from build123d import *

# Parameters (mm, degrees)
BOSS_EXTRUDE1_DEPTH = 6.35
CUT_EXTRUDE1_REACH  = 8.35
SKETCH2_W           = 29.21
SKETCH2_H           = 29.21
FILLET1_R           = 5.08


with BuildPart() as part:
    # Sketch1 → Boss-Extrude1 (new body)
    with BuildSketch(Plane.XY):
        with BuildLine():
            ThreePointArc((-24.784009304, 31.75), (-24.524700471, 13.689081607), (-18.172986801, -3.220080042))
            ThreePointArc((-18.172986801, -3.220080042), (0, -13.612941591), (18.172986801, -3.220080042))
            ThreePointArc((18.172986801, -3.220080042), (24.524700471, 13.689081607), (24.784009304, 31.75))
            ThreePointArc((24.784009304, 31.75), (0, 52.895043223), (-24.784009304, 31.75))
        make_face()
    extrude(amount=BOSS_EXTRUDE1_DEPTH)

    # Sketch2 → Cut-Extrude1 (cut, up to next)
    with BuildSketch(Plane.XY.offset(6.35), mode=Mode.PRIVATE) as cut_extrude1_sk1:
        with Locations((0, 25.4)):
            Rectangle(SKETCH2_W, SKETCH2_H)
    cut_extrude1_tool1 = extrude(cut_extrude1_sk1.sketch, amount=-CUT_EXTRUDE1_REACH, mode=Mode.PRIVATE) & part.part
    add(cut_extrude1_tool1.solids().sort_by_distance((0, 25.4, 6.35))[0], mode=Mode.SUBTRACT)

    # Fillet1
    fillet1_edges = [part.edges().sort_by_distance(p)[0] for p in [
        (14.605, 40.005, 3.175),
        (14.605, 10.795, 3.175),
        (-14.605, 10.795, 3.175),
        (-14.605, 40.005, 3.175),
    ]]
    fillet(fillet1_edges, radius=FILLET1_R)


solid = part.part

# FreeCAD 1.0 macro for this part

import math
import FreeCAD as App
import Part
import Sketcher

V = App.Vector
Q = App.Units.Quantity


def edges_at(feature, points):
    """Names of the edges that pass closest to the given points."""
    edges = feature.Shape.Edges
    near = lambda p: min(range(len(edges)), key=lambda i: edges[i].distToShape(Part.Vertex(*p))[0])
    return sorted({f"Edge{near(p) + 1}" for p in points})


def add_polygon(sketch, points):
    """Adds a closed chain of lines whose ends are joined by coincident constraints."""
    first, n = sketch.GeometryCount, len(points)
    for a, b in zip(points, points[1:] + points[:1]):
        sketch.addGeometry(Part.LineSegment(App.Vector(*a, 0), App.Vector(*b, 0)), False)
    for i in range(n):
        sketch.addConstraint(Sketcher.Constraint("Coincident", first + i, 2, first + (i + 1) % n, 1))

doc = App.newDocument("Part")
body = doc.addObject("PartDesign::Body", "Body")

# Sketch on XY plane
sketch1 = body.newObject("Sketcher::SketchObject", "Sketch")
sketch1.AttachmentSupport = (doc.getObject("XY_Plane"), [""])
sketch1.MapMode = "FlatFace"
sketch1.addGeometry(Part.ArcOfCircle(Part.Circle(V(27, 23, 0), V(0, 0, 1), 53), math.radians(171), math.radians(210)), False)
sketch1.addGeometry(Part.ArcOfCircle(Part.Circle(V(0, 7, 0), V(0, 0, 1), 21), math.radians(-150), math.radians(-30)), False)
sketch1.addGeometry(Part.ArcOfCircle(Part.Circle(V(-27, 23, 0), V(0, 0, 1), 53), math.radians(-30), math.radians(9)), False)
sketch1.addGeometry(Part.ArcOfCircle(Part.Circle(V(0, 28, 0), V(0, 0, 1), 25), math.radians(9), math.radians(171)), False)
sketch1.addConstraint(Sketcher.Constraint("Tangent", 0, 2, 1, 1))
sketch1.addConstraint(Sketcher.Constraint("Tangent", 1, 2, 2, 1))
sketch1.addConstraint(Sketcher.Constraint("Tangent", 2, 2, 3, 1))
sketch1.addConstraint(Sketcher.Constraint("Tangent", 3, 2, 0, 1))
sketch1.addConstraint(Sketcher.Constraint("Equal", 0, 2))
sketch1.addConstraint(Sketcher.Constraint("Symmetric", 0, 3, 2, 3, -2))
sketch1.addConstraint(Sketcher.Constraint("DistanceY", -1, 1, 2, 2, Q("1.25 in")))
sketch1.addConstraint(Sketcher.Constraint("Radius", 1, Q("21.085099 mm")))
sketch1.addConstraint(Sketcher.Constraint("Radius", 0, Q("52.620531 mm")))
sketch1.addConstraint(Sketcher.Constraint("Radius", 3, Q("25.097134 mm")))
sketch1.addConstraint(Sketcher.Constraint("DistanceX", -1, 1, 0, 3, Q("27.180001 mm")))
pad1 = body.newObject("PartDesign::Pad", "Pad")
pad1.Profile = sketch1
pad1.Length = Q("0.25 in")

# Sketch on XY plane
sketch2 = body.newObject("Sketcher::SketchObject", "Sketch001")
sketch2.AttachmentSupport = (doc.getObject("XY_Plane"), [""])
sketch2.MapMode = "FlatFace"
sketch2.AttachmentOffset = App.Placement(V(0, 0, 0.25 * 25.4), App.Rotation())
add_polygon(sketch2, [(-15, 40), (-15, 11), (15, 11), (15, 40)])  # lines 0-3
sketch2.addConstraint(Sketcher.Constraint("Vertical", 0))
sketch2.addConstraint(Sketcher.Constraint("Horizontal", 1))
sketch2.addConstraint(Sketcher.Constraint("Vertical", 2))
sketch2.addConstraint(Sketcher.Constraint("Horizontal", 3))
sketch2.addConstraint(Sketcher.Constraint("Equal", 3, 0))
sketch2.addConstraint(Sketcher.Constraint("DistanceX", 1, 1, 1, 2, Q("1.15 in")))
sketch2.addConstraint(Sketcher.Constraint("DistanceX", 0, 2, -1, 1, Q("0.575 in")))
sketch2.addConstraint(Sketcher.Constraint("DistanceY", -1, 1, 0, 2, Q("0.425 in")))
pocket1 = body.newObject("PartDesign::Pocket", "Pocket")
pocket1.Profile = sketch2
pocket1.Type = "UpToFirst"
doc.recompute()

fillet = body.newObject("PartDesign::Fillet", "Fillet")
fillet.Base = (pocket1, edges_at(pocket1, [
    (14.605, 40.005, 3.175),
    (14.605, 10.795, 3.175),
    (-14.605, 10.795, 3.175),
    (-14.605, 40.005, 3.175),
]))
fillet.Radius = Q("0.2 in")

doc.recompute()
